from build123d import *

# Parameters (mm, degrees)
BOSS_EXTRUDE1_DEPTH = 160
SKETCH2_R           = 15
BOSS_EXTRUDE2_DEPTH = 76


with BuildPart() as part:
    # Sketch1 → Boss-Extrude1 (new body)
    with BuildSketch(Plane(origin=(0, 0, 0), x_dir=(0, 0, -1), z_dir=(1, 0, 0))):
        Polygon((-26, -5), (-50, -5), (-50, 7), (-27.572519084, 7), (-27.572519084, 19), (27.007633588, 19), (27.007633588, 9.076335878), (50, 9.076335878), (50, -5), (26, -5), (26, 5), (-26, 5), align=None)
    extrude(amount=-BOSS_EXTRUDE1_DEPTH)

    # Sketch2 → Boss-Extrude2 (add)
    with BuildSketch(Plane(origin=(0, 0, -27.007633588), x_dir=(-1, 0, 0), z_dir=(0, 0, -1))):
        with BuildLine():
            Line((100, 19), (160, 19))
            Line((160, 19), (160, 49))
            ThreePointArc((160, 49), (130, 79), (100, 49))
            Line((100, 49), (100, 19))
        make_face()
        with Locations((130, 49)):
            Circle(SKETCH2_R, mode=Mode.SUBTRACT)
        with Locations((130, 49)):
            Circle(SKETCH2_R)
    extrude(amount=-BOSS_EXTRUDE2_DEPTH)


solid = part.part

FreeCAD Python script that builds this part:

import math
import FreeCAD as App
import Part
import Sketcher
Q = App.Units.Quantity

doc = App.newDocument("Part")
params = doc.addObject("Spreadsheet::Sheet", "Params")
for row, (alias, value) in enumerate([
    ("sketch1_width", "10 mm"),
    ("sketch1_width2", "12 mm"),
    ("sketch1_height", "24 mm"),
    ("sketch1_height2", "52 mm"),
    ("pad1_length", "160 mm"),
    ("sketch2_radius", "30 mm"),
    ("sketch2_height", "30 mm"),
    ("pad2_length", "76 mm"),
], start=1):
    params.set(f"A{row}", alias)
    params.set(f"B{row}", "=" + value)
    params.setAlias(f"B{row}", alias)

body = doc.addObject("PartDesign::Body", "Body")

sketch1 = body.newObject("Sketcher::SketchObject", "Sketch")
sketch1.AttachmentSupport = (doc.getObject("YZ_Plane"), [""])
sketch1.MapMode = "FlatFace"
sketch1.addGeometry(Part.LineSegment(App.Vector(-5, 50, 0), App.Vector(-5, 26, 0)), False)
sketch1.addGeometry(Part.LineSegment(App.Vector(-5, 26, 0), App.Vector(5, 26, 0)), False)
sketch1.addGeometry(Part.LineSegment(App.Vector(5, 26, 0), App.Vector(5, -26, 0)), False)
sketch1.addGeometry(Part.LineSegment(App.Vector(5, -26, 0), App.Vector(-5, -26, 0)), False)
sketch1.addGeometry(Part.LineSegment(App.Vector(-5, -26, 0), App.Vector(-5, -50, 0)), False)
sketch1.addGeometry(Part.LineSegment(App.Vector(-5, -50, 0), App.Vector(9, -50, 0)), False)
sketch1.addGeometry(Part.LineSegment(App.Vector(9, -50, 0), App.Vector(9, -27, 0)), False)
sketch1.addGeometry(Part.LineSegment(App.Vector(9, -27, 0), App.Vector(19, -27, 0)), False)
sketch1.addGeometry(Part.LineSegment(App.Vector(19, -27, 0), App.Vector(19, 28, 0)), False)
sketch1.addGeometry(Part.LineSegment(App.Vector(19, 28, 0), App.Vector(7, 28, 0)), False)
sketch1.addGeometry(Part.LineSegment(App.Vector(7, 28, 0), App.Vector(7, 50, 0)), False)
sketch1.addGeometry(Part.LineSegment(App.Vector(7, 50, 0), App.Vector(-5, 50, 0)), False)
sketch1.addConstraint(Sketcher.Constraint("Coincident", 0, 2, 1, 1))
sketch1.addConstraint(Sketcher.Constraint("Coincident", 1, 2, 2, 1))
sketch1.addConstraint(Sketcher.Constraint("Coincident", 2, 2, 3, 1))
sketch1.addConstraint(Sketcher.Constraint("Coincident", 3, 2, 4, 1))
sketch1.addConstraint(Sketcher.Constraint("Coincident", 4, 2, 5, 1))
sketch1.addConstraint(Sketcher.Constraint("Coincident", 5, 2, 6, 1))
sketch1.addConstraint(Sketcher.Constraint("Coincident", 6, 2, 7, 1))
sketch1.addConstraint(Sketcher.Constraint("Coincident", 7, 2, 8, 1))
sketch1.addConstraint(Sketcher.Constraint("Coincident", 8, 2, 9, 1))
sketch1.addConstraint(Sketcher.Constraint("Coincident", 9, 2, 10, 1))
sketch1.addConstraint(Sketcher.Constraint("Coincident", 10, 2, 11, 1))
sketch1.addConstraint(Sketcher.Constraint("Coincident", 11, 2, 0, 1))
sketch1.addConstraint(Sketcher.Constraint("Vertical", 0))
sketch1.addConstraint(Sketcher.Constraint("Horizontal", 1))
sketch1.addConstraint(Sketcher.Constraint("Vertical", 2))
sketch1.addConstraint(Sketcher.Constraint("Horizontal", 3))
sketch1.addConstraint(Sketcher.Constraint("Vertical", 4))
sketch1.addConstraint(Sketcher.Constraint("Horizontal", 5))
sketch1.addConstraint(Sketcher.Constraint("Vertical", 6))
sketch1.addConstraint(Sketcher.Constraint("Horizontal", 7))
sketch1.addConstraint(Sketcher.Constraint("Vertical", 8))
sketch1.addConstraint(Sketcher.Constraint("Horizontal", 9))
sketch1.addConstraint(Sketcher.Constraint("Vertical", 10))
sketch1.addConstraint(Sketcher.Constraint("Horizontal", 11))
sketch1.addConstraint(Sketcher.Constraint("Symmetric", 0, 2, 2, 2, -1, 1))
sketch1.addConstraint(Sketcher.Constraint("Symmetric", 4, 2, 11, 2, -1))
sketch1.addConstraint(Sketcher.Constraint("Equal", 9, 11))
sketch1.addConstraint(Sketcher.Constraint("DistanceX", 1, 1, 1, 2, Q("10 mm")))
sketch1.addConstraint(Sketcher.Constraint("DistanceX", 9, 2, 9, 1, Q("12 mm")))
sketch1.addConstraint(Sketcher.Constraint("DistanceY", 0, 2, 0, 1, Q("24 mm")))
sketch1.addConstraint(Sketcher.Constraint("DistanceY", 2, 2, 2, 1, Q("52 mm")))
sketch1.addConstraint(Sketcher.Constraint("DistanceY", 10, 1, 10, 2, Q("22.427481 mm")))
sketch1.addConstraint(Sketcher.Constraint("DistanceX", 5, 1, 5, 2, Q("14.076336 mm")))
sketch1.addConstraint(Sketcher.Constraint("DistanceY", 6, 1, 6, 2, Q("22.992366 mm")))
sketch1.setExpression("Constraints[27]", "Params.sketch1_width")
sketch1.setExpression("Constraints[28]", "Params.sketch1_width2")
sketch1.setExpression("Constraints[29]", "Params.sketch1_height")
sketch1.setExpression("Constraints[30]", "Params.sketch1_height2")
pad1 = body.newObject("PartDesign::Pad", "Pad")
pad1.Profile = sketch1
pad1.setExpression("Length", "Params.pad1_length")
pad1.Reversed = True

sketch2 = body.newObject("Sketcher::SketchObject", "Sketch001")
sketch2.AttachmentSupport = (doc.getObject("XY_Plane"), [""])
sketch2.MapMode = "FlatFace"
sketch2.AttachmentOffset = App.Placement(App.Vector(0, 0, -27.007634), App.Rotation())
sketch2.addGeometry(Part.LineSegment(App.Vector(-100, 19, 0), App.Vector(-160, 19, 0)), False)
sketch2.addGeometry(Part.LineSegment(App.Vector(-160, 19, 0), App.Vector(-160, 49, 0)), False)
sketch2.addGeometry(Part.ArcOfCircle(Part.Circle(App.Vector(-130, 49, 0), App.Vector(0, 0, 1), 30), math.radians(0), math.radians(180)), False)
sketch2.addGeometry(Part.LineSegment(App.Vector(-100, 49, 0), App.Vector(-100, 19, 0)), False)
sketch2.addConstraint(Sketcher.Constraint("Coincident", 0, 2, 1, 1))
sketch2.addConstraint(Sketcher.Constraint("Tangent", 1, 2, 2, 2))
sketch2.addConstraint(Sketcher.Constraint("Tangent", 2, 1, 3, 1))
sketch2.addConstraint(Sketcher.Constraint("Coincident", 3, 2, 0, 1))
sketch2.addConstraint(Sketcher.Constraint("Horizontal", 0))
sketch2.addConstraint(Sketcher.Constraint("Vertical", 1))
sketch2.addConstraint(Sketcher.Constraint("Vertical", 3))
sketch2.addConstraint(Sketcher.Constraint("Radius", 2, Q("30 mm")))
sketch2.addConstraint(Sketcher.Constraint("DistanceY", 1, 1, 1, 2, Q("30 mm")))
sketch2.addConstraint(Sketcher.Constraint("DistanceX", 2, 3, -1, 1, Q("130 mm")))
sketch2.addConstraint(Sketcher.Constraint("DistanceY", -1, 1, 2, 3, Q("49 mm")))
sketch2.setExpression("Constraints[7]", "Params.sketch2_radius")
sketch2.setExpression("Constraints[8]", "Params.sketch2_height")
pad2 = body.newObject("PartDesign::Pad", "Pad001")
pad2.Profile = sketch2
pad2.setExpression("Length", "Params.pad2_length")

doc.recompute()
